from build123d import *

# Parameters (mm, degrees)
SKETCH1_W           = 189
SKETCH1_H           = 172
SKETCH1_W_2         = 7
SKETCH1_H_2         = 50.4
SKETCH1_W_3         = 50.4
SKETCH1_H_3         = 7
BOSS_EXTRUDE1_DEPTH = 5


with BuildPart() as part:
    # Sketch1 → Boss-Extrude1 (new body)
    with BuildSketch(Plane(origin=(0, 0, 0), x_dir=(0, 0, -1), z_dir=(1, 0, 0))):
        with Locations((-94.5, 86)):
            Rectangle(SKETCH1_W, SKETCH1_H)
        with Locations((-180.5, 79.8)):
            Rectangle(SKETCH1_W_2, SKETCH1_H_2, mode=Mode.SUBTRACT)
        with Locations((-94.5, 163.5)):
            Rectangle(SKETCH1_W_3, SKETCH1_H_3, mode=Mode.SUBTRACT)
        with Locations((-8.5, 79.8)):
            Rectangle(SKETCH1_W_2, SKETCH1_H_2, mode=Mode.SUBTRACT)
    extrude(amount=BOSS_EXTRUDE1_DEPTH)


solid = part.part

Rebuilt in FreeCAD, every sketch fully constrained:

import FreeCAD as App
import Part
import Sketcher
from FreeCAD import Vector
Q = App.Units.Quantity

doc = App.newDocument("Part")
body = doc.addObject("PartDesign::Body", "Body")

# Sketch on YZ plane
sketch1 = body.newObject("Sketcher::SketchObject", "Sketch")
sketch1.AttachmentSupport = (doc.getObject("YZ_Plane"), [""])
sketch1.MapMode = "FlatFace"
sketch1.addGeometry([
    Part.LineSegment(Vector(172, 189, 0), Vector(0, 189, 0)),  # 0
    Part.LineSegment(Vector(0, 189, 0), Vector(0, 0, 0)),  # 1
    Part.LineSegment(Vector(0, 0, 0), Vector(172, 0, 0)),  # 2
    Part.LineSegment(Vector(172, 0, 0), Vector(172, 189, 0)),  # 3
    Part.LineSegment(Vector(54.6, 177, 0), Vector(54.6, 184, 0)),  # 4
    Part.LineSegment(Vector(54.6, 184, 0), Vector(105, 184, 0)),  # 5
    Part.LineSegment(Vector(105, 184, 0), Vector(105, 177, 0)),  # 6
    Part.LineSegment(Vector(105, 177, 0), Vector(54.6, 177, 0)),  # 7
    Part.LineSegment(Vector(54.6, 5, 0), Vector(54.6, 12, 0)),  # 8
    Part.LineSegment(Vector(54.6, 12, 0), Vector(105, 12, 0)),  # 9
    Part.LineSegment(Vector(105, 12, 0), Vector(105, 5, 0)),  # 10
    Part.LineSegment(Vector(105, 5, 0), Vector(54.6, 5, 0)),  # 11
    Part.LineSegment(Vector(160, 69.3, 0), Vector(160, 119.7, 0)),  # 12
    Part.LineSegment(Vector(160, 119.7, 0), Vector(167, 119.7, 0)),  # 13
    Part.LineSegment(Vector(167, 119.7, 0), Vector(167, 69.3, 0)),  # 14
    Part.LineSegment(Vector(167, 69.3, 0), Vector(160, 69.3, 0)),  # 15
], False)
sketch1.addConstraint([
    Sketcher.Constraint("Coincident", 0, 2, 1, 1),
    Sketcher.Constraint("Coincident", 1, 2, 2, 1),
    Sketcher.Constraint("Coincident", 2, 2, 3, 1),
    Sketcher.Constraint("Coincident", 3, 2, 0, 1),
    Sketcher.Constraint("Coincident", 4, 2, 5, 1),
    Sketcher.Constraint("Coincident", 5, 2, 6, 1),
    Sketcher.Constraint("Coincident", 6, 2, 7, 1),
    Sketcher.Constraint("Coincident", 7, 2, 4, 1),
    Sketcher.Constraint("Coincident", 8, 2, 9, 1),
    Sketcher.Constraint("Coincident", 9, 2, 10, 1),
    Sketcher.Constraint("Coincident", 10, 2, 11, 1),
    Sketcher.Constraint("Coincident", 11, 2, 8, 1),
    Sketcher.Constraint("Coincident", 12, 2, 13, 1),
    Sketcher.Constraint("Coincident", 13, 2, 14, 1),
    Sketcher.Constraint("Coincident", 14, 2, 15, 1),
    Sketcher.Constraint("Coincident", 15, 2, 12, 1),
    Sketcher.Constraint("Horizontal", 0),
    Sketcher.Constraint("Vertical", 1),
    Sketcher.Constraint("Horizontal", 2),
    Sketcher.Constraint("Vertical", 3),
    Sketcher.Constraint("Vertical", 4),
    Sketcher.Constraint("Horizontal", 5),
    Sketcher.Constraint("Vertical", 6),
    Sketcher.Constraint("Horizontal", 7),
    Sketcher.Constraint("Vertical", 8),
    Sketcher.Constraint("Horizontal", 9),
    Sketcher.Constraint("Vertical", 10),
    Sketcher.Constraint("Horizontal", 11),
    Sketcher.Constraint("Vertical", 12),
    Sketcher.Constraint("Horizontal", 13),
    Sketcher.Constraint("Vertical", 14),
    Sketcher.Constraint("Horizontal", 15),
    Sketcher.Constraint("Coincident", 1, 2, -1, 1),
    Sketcher.Constraint("Vertical", 7, 2, 8, 2),
    Sketcher.Constraint("Vertical", 6, 2, 9, 2),
    Sketcher.Constraint("Equal", 15, 4),
    Sketcher.Constraint("Equal", 6, 8),
    Sketcher.Constraint("Equal", 11, 12),
    Sketcher.Constraint("DistanceX", 0, 2, 0, 1, Q("172 mm")),
    Sketcher.Constraint("DistanceX", 13, 1, 13, 2, Q("7 mm")),
    Sketcher.Constraint("DistanceY", 1, 2, 1, 1, Q("189 mm")),
    Sketcher.Constraint("DistanceX", 5, 1, 5, 2, Q("50.4 mm")),
    Sketcher.Constraint("DistanceY", -1, 1, 4, 2, Q("184 mm")),
    Sketcher.Constraint("DistanceX", -1, 1, 5, 2, Q("105 mm")),
    Sketcher.Constraint("DistanceY", -1, 1, 8, 2, Q("12 mm")),
    Sketcher.Constraint("DistanceX", -1, 1, 12, 2, Q("160 mm")),
    Sketcher.Constraint("DistanceY", -1, 1, 12, 2, Q("119.7 mm")),
])
pad1 = body.newObject("PartDesign::Pad", "Pad")
pad1.Profile = sketch1
pad1.Length = 5

doc.recompute()
